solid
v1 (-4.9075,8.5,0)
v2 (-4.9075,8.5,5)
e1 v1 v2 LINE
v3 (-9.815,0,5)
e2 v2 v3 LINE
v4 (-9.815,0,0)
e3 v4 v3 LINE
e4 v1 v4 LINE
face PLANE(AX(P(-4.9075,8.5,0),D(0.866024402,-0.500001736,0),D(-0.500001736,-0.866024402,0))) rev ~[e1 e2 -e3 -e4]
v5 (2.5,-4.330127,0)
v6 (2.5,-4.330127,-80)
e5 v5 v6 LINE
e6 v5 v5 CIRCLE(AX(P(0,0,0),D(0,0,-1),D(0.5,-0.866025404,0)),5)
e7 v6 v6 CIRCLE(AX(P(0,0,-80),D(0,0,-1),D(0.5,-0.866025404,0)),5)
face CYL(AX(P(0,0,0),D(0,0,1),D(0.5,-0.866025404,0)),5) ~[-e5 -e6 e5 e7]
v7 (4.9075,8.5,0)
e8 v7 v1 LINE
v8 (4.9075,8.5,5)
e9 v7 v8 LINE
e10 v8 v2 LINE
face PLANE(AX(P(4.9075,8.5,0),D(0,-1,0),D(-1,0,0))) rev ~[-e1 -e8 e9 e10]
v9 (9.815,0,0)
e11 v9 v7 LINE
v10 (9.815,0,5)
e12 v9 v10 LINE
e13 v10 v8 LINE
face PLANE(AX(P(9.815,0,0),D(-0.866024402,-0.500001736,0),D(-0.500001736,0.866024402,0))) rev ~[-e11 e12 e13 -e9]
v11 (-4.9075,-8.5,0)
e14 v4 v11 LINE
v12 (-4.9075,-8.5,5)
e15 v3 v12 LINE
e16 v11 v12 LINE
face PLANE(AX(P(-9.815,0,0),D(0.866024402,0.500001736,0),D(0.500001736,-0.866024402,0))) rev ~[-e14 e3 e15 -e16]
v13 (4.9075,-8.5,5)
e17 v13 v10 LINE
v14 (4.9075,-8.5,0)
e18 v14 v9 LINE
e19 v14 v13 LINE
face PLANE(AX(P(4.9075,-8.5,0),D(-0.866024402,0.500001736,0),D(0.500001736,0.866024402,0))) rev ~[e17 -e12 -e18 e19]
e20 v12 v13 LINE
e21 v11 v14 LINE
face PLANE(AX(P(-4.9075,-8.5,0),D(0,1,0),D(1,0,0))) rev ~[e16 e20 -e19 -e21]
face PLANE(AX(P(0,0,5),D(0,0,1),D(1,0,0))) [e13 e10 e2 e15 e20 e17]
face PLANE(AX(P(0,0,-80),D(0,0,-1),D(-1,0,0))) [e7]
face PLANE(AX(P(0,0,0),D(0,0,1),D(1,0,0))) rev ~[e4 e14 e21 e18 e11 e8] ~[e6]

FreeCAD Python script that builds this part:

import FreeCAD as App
import Part
import Sketcher
from FreeCAD import Vector
Q = App.Units.Quantity

doc = App.newDocument("Part")
body = doc.addObject("PartDesign::Body", "Body")

# Sketch on XY plane
sketch1 = body.newObject("Sketcher::SketchObject", "Sketch")
sketch1.AttachmentSupport = (doc.getObject("XY_Plane"), [""])
sketch1.MapMode = "FlatFace"
sketch1.addGeometry([
    Part.LineSegment(Vector(4.9075, 8.5, 0), Vector(-4.9075, 8.5, 0)),  # 0
    Part.LineSegment(Vector(-4.9075, 8.5, 0), Vector(-9.815, 0, 0)),  # 1
    Part.LineSegment(Vector(-9.815, 0, 0), Vector(-4.9075, -8.5, 0)),  # 2
    Part.LineSegment(Vector(-4.9075, -8.5, 0), Vector(4.9075, -8.5, 0)),  # 3
    Part.LineSegment(Vector(4.9075, -8.5, 0), Vector(9.815, 0, 0)),  # 4
    Part.LineSegment(Vector(9.815, 0, 0), Vector(4.9075, 8.5, 0)),  # 5
], False)
sketch1.addConstraint([
    Sketcher.Constraint("Coincident", 0, 2, 1, 1),
    Sketcher.Constraint("Coincident", 1, 2, 2, 1),
    Sketcher.Constraint("Coincident", 2, 2, 3, 1),
    Sketcher.Constraint("Coincident", 3, 2, 4, 1),
    Sketcher.Constraint("Coincident", 4, 2, 5, 1),
    Sketcher.Constraint("Coincident", 5, 2, 0, 1),
    Sketcher.Constraint("Horizontal", 0),
    Sketcher.Constraint("Horizontal", 3),
    Sketcher.Constraint("Symmetric", 0, 2, 3, 2, -1, 1),
    Sketcher.Constraint("Symmetric", 1, 2, 4, 2, -1, 1),
    Sketcher.Constraint("PointOnObject", 1, 2, -1),
    Sketcher.Constraint("Parallel", 2, 5),
    Sketcher.Constraint("Vertical", 0, 2, 2, 2),
    Sketcher.Constraint("Angle", 1, Q("-120 deg")),
    Sketcher.Constraint("DistanceY", 2, 2, 0, 2, Q("17 mm")),
    Sketcher.Constraint("DistanceX", 0, 2, 0, 1, Q("9.815 mm")),
])
pad1 = body.newObject("PartDesign::Pad", "Pad")
pad1.Profile = sketch1
pad1.Length = 5

# Sketch on XY plane
sketch2 = body.newObject("Sketcher::SketchObject", "Sketch001")
sketch2.AttachmentSupport = (doc.getObject("XY_Plane"), [""])
sketch2.MapMode = "FlatFace"
sketch2.addGeometry(Part.Circle(Vector(0, 0, 0), Vector(0, 0, 1), 5), False)
sketch2.addConstraint([
    Sketcher.Constraint("Coincident", 0, 3, -1, 1),
    Sketcher.Constraint("Diameter", 0, Q("10 mm")),
])
pad2 = body.newObject("PartDesign::Pad", "Pad001")
pad2.Profile = sketch2
pad2.Length = 80
pad2.Reversed = True

doc.recompute()
